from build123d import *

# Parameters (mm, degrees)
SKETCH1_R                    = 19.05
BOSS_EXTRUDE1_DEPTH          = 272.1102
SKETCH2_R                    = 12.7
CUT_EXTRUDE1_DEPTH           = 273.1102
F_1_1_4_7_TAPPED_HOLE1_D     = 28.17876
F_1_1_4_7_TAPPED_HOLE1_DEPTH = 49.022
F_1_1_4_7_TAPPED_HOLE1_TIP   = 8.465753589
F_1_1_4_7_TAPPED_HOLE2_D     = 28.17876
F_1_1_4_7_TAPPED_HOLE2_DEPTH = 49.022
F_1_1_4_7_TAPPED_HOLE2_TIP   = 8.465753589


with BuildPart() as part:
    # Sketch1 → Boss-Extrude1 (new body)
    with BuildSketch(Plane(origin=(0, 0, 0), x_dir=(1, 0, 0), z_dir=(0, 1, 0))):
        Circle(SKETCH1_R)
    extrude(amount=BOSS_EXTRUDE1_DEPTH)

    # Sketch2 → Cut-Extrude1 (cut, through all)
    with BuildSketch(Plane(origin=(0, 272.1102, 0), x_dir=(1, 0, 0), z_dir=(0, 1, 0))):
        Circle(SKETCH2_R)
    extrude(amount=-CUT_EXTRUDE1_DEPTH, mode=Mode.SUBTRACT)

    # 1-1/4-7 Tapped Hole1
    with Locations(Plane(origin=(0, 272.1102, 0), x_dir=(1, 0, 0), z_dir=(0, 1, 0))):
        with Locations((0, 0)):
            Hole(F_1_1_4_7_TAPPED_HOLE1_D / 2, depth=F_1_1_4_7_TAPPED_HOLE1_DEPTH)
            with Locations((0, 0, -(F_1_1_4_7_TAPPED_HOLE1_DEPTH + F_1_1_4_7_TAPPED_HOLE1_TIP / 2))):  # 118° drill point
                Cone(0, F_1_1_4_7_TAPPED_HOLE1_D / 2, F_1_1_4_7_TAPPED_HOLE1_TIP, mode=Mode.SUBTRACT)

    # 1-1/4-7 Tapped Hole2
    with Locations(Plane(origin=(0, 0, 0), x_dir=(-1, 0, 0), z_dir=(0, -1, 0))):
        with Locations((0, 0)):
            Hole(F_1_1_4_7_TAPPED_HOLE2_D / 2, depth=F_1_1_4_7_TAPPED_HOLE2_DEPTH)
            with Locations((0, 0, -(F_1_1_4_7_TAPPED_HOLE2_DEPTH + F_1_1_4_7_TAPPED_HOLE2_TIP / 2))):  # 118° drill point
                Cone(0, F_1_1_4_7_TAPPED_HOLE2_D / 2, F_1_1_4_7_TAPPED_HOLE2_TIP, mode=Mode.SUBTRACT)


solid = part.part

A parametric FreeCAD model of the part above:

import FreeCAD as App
import Part
import Sketcher

V = App.Vector
Q = App.Units.Quantity

doc = App.newDocument("Part")
body = doc.addObject("PartDesign::Body", "Body")

# Sketch on XZ plane
sketch1 = body.newObject("Sketcher::SketchObject", "Sketch")
sketch1.AttachmentSupport = (doc.getObject("XZ_Plane"), [""])
sketch1.MapMode = "FlatFace"
sketch1.addGeometry(Part.Circle(V(0, 0, 0), V(0, 0, 1), 19), False)
sketch1.addConstraint(Sketcher.Constraint("Coincident", 0, 3, -1, 1))
sketch1.addConstraint(Sketcher.Constraint("Diameter", 0, Q("1.5 in")))
pad1 = body.newObject("PartDesign::Pad", "Pad")
pad1.Profile = sketch1
pad1.Length = Q("10.713 in")
pad1.Reversed = True

# Sketch on XZ plane
sketch2 = body.newObject("Sketcher::SketchObject", "Sketch001")
sketch2.AttachmentSupport = (doc.getObject("XZ_Plane"), [""])
sketch2.MapMode = "FlatFace"
sketch2.AttachmentOffset = App.Placement(V(0, 0, -10.713 * 25.4), App.Rotation())
sketch2.addGeometry(Part.Circle(V(0, 0, 0), V(0, 0, 1), 13), False)
sketch2.addConstraint(Sketcher.Constraint("Coincident", 0, 3, -1, 1))
sketch2.addConstraint(Sketcher.Constraint("Diameter", 0, Q("1 in")))
pocket1 = body.newObject("PartDesign::Pocket", "Pocket")
pocket1.Profile = sketch2
pocket1.Type = "ThroughAll"
pocket1.Reversed = True

# Sketch on XZ plane
sketch3 = body.newObject("Sketcher::SketchObject", "Sketch002")
sketch3.AttachmentSupport = (doc.getObject("XZ_Plane"), [""])
sketch3.MapMode = "FlatFace"
sketch3.AttachmentOffset = App.Placement(V(0, 0, -10.713 * 25.4), App.Rotation())
sketch3.addGeometry(Part.Circle(V(0, 0, 0), V(0, 0, 1), 14), False)
sketch3.addConstraint(Sketcher.Constraint("Coincident", 0, 3, -1, 1))
sketch3.addConstraint(Sketcher.Constraint("Diameter", 0, Q("1.1094 in")))
doc.recompute()
hole = body.newObject("PartDesign::Hole", "Hole")
hole.Profile = sketch3
hole.ThreadType = "None"
hole.Diameter = Q("1.1094 in")
hole.DepthType = "Dimension"
hole.Depth = Q("1.93 in")
hole.DrillPoint = "Angled"
hole.DrillPointAngle = 118
hole.Reversed = True

# Sketch on XZ plane
sketch4 = body.newObject("Sketcher::SketchObject", "Sketch003")
sketch4.AttachmentSupport = (doc.getObject("XZ_Plane"), [""])
sketch4.MapMode = "FlatFace"
sketch4.addGeometry(Part.Circle(V(0, 0, 0), V(0, 0, 1), 14), False)
sketch4.addConstraint(Sketcher.Constraint("Coincident", 0, 3, -1, 1))
sketch4.addConstraint(Sketcher.Constraint("Diameter", 0, Q("1.1094 in")))
doc.recompute()
hole2 = body.newObject("PartDesign::Hole", "Hole001")
hole2.Profile = sketch4
hole2.ThreadType = "None"
hole2.Diameter = Q("1.1094 in")
hole2.DepthType = "Dimension"
hole2.Depth = Q("1.93 in")
hole2.DrillPoint = "Angled"
hole2.DrillPointAngle = 118

doc.recompute()
